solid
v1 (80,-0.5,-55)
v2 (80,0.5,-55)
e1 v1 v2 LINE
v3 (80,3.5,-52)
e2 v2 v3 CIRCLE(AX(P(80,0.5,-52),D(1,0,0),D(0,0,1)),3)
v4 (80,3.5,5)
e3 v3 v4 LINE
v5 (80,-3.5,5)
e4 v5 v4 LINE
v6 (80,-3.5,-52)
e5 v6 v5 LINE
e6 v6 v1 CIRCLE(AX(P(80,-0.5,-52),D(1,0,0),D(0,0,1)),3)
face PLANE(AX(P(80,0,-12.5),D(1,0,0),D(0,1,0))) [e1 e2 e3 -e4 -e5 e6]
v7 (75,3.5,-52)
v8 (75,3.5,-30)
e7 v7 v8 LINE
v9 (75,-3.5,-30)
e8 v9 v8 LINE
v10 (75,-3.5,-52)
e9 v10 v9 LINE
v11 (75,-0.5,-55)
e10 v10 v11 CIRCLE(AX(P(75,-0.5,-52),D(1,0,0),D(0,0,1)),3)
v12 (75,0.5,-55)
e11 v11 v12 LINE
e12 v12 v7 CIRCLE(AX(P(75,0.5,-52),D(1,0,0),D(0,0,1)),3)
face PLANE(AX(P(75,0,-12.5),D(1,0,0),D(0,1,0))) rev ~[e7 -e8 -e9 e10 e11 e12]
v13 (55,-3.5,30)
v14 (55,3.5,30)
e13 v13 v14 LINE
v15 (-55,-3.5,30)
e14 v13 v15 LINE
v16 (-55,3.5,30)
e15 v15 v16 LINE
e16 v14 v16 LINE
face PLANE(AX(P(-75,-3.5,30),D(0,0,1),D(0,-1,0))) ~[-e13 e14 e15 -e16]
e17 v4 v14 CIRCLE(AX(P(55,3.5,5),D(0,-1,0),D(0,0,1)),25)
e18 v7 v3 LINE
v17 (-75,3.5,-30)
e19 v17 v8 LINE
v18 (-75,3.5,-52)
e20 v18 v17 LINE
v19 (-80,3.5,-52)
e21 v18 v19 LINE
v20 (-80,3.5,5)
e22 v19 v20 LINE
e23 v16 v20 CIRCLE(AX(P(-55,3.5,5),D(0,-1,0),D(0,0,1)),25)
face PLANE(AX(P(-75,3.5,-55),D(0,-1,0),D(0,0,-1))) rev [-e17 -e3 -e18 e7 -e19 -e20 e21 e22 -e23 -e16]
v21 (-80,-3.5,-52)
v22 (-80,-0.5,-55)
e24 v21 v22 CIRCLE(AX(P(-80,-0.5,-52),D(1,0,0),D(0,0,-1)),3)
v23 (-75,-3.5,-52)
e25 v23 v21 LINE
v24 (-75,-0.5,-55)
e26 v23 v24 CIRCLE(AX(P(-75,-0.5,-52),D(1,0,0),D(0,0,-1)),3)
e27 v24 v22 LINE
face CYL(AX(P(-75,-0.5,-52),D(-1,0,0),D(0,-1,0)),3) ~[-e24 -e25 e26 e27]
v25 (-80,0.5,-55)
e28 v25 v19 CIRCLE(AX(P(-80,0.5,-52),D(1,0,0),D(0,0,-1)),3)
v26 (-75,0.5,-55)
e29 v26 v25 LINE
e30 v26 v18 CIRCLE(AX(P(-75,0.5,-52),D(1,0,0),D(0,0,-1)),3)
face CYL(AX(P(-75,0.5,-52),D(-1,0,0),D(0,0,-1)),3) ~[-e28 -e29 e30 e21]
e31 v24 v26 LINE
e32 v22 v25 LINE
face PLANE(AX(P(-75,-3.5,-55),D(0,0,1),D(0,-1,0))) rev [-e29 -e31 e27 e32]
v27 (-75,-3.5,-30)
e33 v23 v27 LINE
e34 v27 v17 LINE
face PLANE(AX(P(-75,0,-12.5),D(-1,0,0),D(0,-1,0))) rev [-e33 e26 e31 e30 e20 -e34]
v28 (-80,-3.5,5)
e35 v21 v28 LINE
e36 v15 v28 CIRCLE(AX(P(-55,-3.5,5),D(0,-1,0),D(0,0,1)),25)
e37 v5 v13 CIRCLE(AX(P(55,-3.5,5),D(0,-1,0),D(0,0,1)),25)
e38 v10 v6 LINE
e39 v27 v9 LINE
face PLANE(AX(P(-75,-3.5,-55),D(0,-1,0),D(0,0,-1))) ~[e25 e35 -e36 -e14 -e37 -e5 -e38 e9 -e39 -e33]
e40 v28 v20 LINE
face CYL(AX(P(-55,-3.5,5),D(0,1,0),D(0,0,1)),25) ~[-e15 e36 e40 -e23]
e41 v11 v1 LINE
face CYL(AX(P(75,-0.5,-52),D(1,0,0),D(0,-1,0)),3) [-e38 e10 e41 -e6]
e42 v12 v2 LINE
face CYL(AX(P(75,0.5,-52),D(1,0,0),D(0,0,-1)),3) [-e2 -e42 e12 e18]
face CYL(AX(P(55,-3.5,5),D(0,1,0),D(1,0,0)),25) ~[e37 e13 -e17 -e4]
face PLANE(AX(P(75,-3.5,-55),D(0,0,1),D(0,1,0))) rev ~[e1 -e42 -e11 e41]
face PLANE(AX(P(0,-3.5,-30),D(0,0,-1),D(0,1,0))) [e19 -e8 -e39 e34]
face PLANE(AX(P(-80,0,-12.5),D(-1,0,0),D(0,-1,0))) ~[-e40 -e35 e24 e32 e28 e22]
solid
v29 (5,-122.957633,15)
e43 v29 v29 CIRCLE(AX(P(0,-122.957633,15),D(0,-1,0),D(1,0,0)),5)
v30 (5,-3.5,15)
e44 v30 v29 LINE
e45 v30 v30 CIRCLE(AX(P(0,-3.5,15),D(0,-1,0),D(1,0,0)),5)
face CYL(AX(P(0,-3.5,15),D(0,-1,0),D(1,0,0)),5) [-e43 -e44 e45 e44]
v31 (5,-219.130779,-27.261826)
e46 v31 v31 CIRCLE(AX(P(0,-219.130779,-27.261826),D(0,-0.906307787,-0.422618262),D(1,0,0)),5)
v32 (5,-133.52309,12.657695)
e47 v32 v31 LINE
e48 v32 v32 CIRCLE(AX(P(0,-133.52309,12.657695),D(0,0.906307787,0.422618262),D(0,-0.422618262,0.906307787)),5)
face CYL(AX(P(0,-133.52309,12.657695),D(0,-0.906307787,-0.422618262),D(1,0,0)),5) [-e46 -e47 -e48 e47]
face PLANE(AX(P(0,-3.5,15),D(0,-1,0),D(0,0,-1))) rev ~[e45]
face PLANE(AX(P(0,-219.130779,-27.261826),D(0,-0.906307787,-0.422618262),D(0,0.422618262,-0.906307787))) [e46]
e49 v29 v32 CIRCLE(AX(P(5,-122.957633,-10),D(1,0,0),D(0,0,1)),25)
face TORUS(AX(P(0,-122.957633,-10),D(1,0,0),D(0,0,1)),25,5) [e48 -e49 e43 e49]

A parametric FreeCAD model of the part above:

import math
import FreeCAD as App
import Part
import Sketcher
from FreeCAD import Vector
Q = App.Units.Quantity


def edges_at(feature, points):
    """Names of the edges that pass closest to the given points."""
    edges = feature.Shape.Edges
    near = lambda p: min(range(len(edges)), key=lambda i: edges[i].distToShape(Part.Vertex(*p))[0])
    return sorted({f"Edge{near(p) + 1}" for p in points})


def add_polygon(sketch, points):
    """Adds a closed chain of lines whose ends are joined by coincident constraints."""
    first, n = sketch.GeometryCount, len(points)
    for a, b in zip(points, points[1:] + points[:1]):
        sketch.addGeometry(Part.LineSegment(App.Vector(*a, 0), App.Vector(*b, 0)), False)
    for i in range(n):
        sketch.addConstraint(Sketcher.Constraint("Coincident", first + i, 2, first + (i + 1) % n, 1))

doc = App.newDocument("Part")
params = doc.addObject("Spreadsheet::Sheet", "Params")
for row, (alias, value) in enumerate([
    ("sketch1_width", "7 mm"),
    ("sketch1_height", "60 mm"),
    ("pad1_length", "75 mm"),
    ("pad1_length2", "75 mm"),
    ("sketch2_width", "7 mm"),
    ("sketch2_height", "85 mm"),
    ("pad2_length", "5 mm"),
    ("fillet_radius", "25 mm"),
    ("fillet2_radius", "3 mm"),
    ("sketch3_diameter", "10 mm"),
    ("sketch4_radius", "25 mm"),
], start=1):
    params.set(f"A{row}", alias)
    params.set(f"B{row}", "=" + value)
    params.setAlias(f"B{row}", alias)

body = doc.addObject("PartDesign::Body", "Body")

sketch1 = body.newObject("Sketcher::SketchObject", "Sketch")
sketch1.AttachmentSupport = (doc.getObject("YZ_Plane"), [""])
sketch1.MapMode = "FlatFace"
add_polygon(sketch1, [(-4, 30), (-4, -30), (4, -30), (4, 30)])
sketch1.addConstraint([
    Sketcher.Constraint("Vertical", 0),
    Sketcher.Constraint("Horizontal", 1),
    Sketcher.Constraint("Vertical", 2),
    Sketcher.Constraint("Horizontal", 3),
    Sketcher.Constraint("Symmetric", 0, 2, 2, 2, -1, 1),
    Sketcher.Constraint("DistanceX", 1, 1, 1, 2, 7.0),
    Sketcher.Constraint("DistanceY", 0, 2, 0, 1, 60.0),
])
sketch1.setExpression("Constraints[9]", "Params.sketch1_width")
sketch1.setExpression("Constraints[10]", "Params.sketch1_height")
pad1 = body.newObject("PartDesign::Pad", "Pad")
pad1.Profile = sketch1
pad1.Type = "TwoLengths"
pad1.setExpression("Length", "Params.pad1_length")
pad1.setExpression("Length2", "Params.pad1_length2")

sketch2 = body.newObject("Sketcher::SketchObject", "Sketch001")
sketch2.AttachmentSupport = (doc.getObject("YZ_Plane"), [""])
sketch2.MapMode = "FlatFace"
sketch2.AttachmentOffset = App.Placement(Vector(0, 0, 75), App.Rotation())
add_polygon(sketch2, [(-4, 30), (-4, -55), (4, -55), (4, 30)])
sketch2.addConstraint([
    Sketcher.Constraint("Vertical", 0),
    Sketcher.Constraint("Horizontal", 1),
    Sketcher.Constraint("Vertical", 2),
    Sketcher.Constraint("Horizontal", 3),
    Sketcher.Constraint("DistanceX", 1, 1, 1, 2, 7.0),
    Sketcher.Constraint("DistanceY", 0, 2, 0, 1, 85.0),
    Sketcher.Constraint("DistanceY", 0, 2, -1, 1, 55.0),
    Sketcher.Constraint("DistanceX", 0, 2, -1, 1, 3.5),
])
sketch2.setExpression("Constraints[8]", "Params.sketch2_width")
sketch2.setExpression("Constraints[9]", "Params.sketch2_height")
pad2 = body.newObject("PartDesign::Pad", "Pad001")
pad2.Profile = sketch2
pad2.setExpression("Length", "Params.pad2_length")
body2 = doc.addObject("PartDesign::Body", "Body001")
doc.recompute()

body2.BaseFeature = body
doc.recompute()

mirroring = doc.addObject("Part::Mirroring", "Mirroring")
mirroring.Source = body
mirroring.Base = Vector(0, 0, 0)
mirroring.Normal = Vector(1, 0, 0)
body3 = doc.addObject("PartDesign::Body", "Body002")
body3.BaseFeature = mirroring
boolean = body2.newObject("PartDesign::Boolean", "Boolean")
boolean.Type = "Fuse"
boolean.addObjects([body3])
doc.recompute()

fillet = body2.newObject("PartDesign::Fillet", "Fillet")
fillet.Base = (boolean, edges_at(boolean, [(-80, 0, 30), (80, 0, 30)]))
fillet.setExpression("Radius", "Params.fillet_radius")
doc.recompute()

fillet2 = body2.newObject("PartDesign::Fillet", "Fillet001")
fillet2.Base = (fillet, edges_at(fillet, [
    (-77.5, -3.5, -55),
    (77.5, -3.5, -55),
    (-77.5, 3.5, -55),
    (77.5, 3.5, -55),
]))
fillet2.setExpression("Radius", "Params.fillet2_radius")
body4 = doc.addObject("PartDesign::Body", "Body003")

sketch3 = body4.newObject("Sketcher::SketchObject", "Sketch002")
sketch3.AttachmentSupport = (doc.getObject("XZ_Plane003"), [""])
sketch3.MapMode = "FlatFace"
sketch3.AttachmentOffset = App.Placement(Vector(0, 0, 3.5), App.Rotation())
sketch3.addGeometry(Part.Circle(Vector(0, 15, 0), Vector(0, 0, 1), 5), False)
sketch3.addConstraint([
    Sketcher.Constraint("PointOnObject", 0, 3, -2),
    Sketcher.Constraint("Diameter", 0, 10.0),
    Sketcher.Constraint("DistanceY", -1, 1, 0, 3, 15.0),
])
sketch3.setExpression("Constraints[1]", "Params.sketch3_diameter")

sketch4 = body4.newObject("Sketcher::SketchObject", "Sketch003")
sketch4.AttachmentSupport = (doc.getObject("YZ_Plane003"), [""])
sketch4.MapMode = "FlatFace"
sketch4.addGeometry([
    Part.LineSegment(Vector(-4, 15, 0), Vector(-123, 15, 0)),
    Part.ArcOfCircle(Part.Circle(Vector(-123, -10, 0), Vector(0, 0, 1), 25), math.radians(90), math.radians(115)),
    Part.LineSegment(Vector(-134, 13, 0), Vector(-219, -27, 0)),
], False)
sketch4.addConstraint([
    Sketcher.Constraint("Tangent", 0, 2, 1, 1),
    Sketcher.Constraint("Tangent", 1, 2, 2, 1),
    Sketcher.Constraint("Horizontal", 0),
    Sketcher.Constraint("Radius", 1, 25.0),
    Sketcher.Constraint("Angle", 2, Q("-155 deg")),
    Sketcher.Constraint("DistanceY", 1, 3, -1, 1, 10.0),
    Sketcher.Constraint("DistanceX", 0, 1, -1, 1, 3.5),
    Sketcher.Constraint("DistanceX", 0, 2, 0, 1, 119.457633),
    Sketcher.Constraint("DistanceX", 2, 2, -1, 1, 219.130779),
])
sketch4.setExpression("Constraints[3]", "Params.sketch4_radius")
doc.recompute()

additivepipe = body4.newObject("PartDesign::AdditivePipe", "AdditivePipe")
additivepipe.Profile = sketch3
additivepipe.Spine = (sketch4, ["Edge1", "Edge2", "Edge3"])
mirroring.Visibility = False

doc.recompute()
